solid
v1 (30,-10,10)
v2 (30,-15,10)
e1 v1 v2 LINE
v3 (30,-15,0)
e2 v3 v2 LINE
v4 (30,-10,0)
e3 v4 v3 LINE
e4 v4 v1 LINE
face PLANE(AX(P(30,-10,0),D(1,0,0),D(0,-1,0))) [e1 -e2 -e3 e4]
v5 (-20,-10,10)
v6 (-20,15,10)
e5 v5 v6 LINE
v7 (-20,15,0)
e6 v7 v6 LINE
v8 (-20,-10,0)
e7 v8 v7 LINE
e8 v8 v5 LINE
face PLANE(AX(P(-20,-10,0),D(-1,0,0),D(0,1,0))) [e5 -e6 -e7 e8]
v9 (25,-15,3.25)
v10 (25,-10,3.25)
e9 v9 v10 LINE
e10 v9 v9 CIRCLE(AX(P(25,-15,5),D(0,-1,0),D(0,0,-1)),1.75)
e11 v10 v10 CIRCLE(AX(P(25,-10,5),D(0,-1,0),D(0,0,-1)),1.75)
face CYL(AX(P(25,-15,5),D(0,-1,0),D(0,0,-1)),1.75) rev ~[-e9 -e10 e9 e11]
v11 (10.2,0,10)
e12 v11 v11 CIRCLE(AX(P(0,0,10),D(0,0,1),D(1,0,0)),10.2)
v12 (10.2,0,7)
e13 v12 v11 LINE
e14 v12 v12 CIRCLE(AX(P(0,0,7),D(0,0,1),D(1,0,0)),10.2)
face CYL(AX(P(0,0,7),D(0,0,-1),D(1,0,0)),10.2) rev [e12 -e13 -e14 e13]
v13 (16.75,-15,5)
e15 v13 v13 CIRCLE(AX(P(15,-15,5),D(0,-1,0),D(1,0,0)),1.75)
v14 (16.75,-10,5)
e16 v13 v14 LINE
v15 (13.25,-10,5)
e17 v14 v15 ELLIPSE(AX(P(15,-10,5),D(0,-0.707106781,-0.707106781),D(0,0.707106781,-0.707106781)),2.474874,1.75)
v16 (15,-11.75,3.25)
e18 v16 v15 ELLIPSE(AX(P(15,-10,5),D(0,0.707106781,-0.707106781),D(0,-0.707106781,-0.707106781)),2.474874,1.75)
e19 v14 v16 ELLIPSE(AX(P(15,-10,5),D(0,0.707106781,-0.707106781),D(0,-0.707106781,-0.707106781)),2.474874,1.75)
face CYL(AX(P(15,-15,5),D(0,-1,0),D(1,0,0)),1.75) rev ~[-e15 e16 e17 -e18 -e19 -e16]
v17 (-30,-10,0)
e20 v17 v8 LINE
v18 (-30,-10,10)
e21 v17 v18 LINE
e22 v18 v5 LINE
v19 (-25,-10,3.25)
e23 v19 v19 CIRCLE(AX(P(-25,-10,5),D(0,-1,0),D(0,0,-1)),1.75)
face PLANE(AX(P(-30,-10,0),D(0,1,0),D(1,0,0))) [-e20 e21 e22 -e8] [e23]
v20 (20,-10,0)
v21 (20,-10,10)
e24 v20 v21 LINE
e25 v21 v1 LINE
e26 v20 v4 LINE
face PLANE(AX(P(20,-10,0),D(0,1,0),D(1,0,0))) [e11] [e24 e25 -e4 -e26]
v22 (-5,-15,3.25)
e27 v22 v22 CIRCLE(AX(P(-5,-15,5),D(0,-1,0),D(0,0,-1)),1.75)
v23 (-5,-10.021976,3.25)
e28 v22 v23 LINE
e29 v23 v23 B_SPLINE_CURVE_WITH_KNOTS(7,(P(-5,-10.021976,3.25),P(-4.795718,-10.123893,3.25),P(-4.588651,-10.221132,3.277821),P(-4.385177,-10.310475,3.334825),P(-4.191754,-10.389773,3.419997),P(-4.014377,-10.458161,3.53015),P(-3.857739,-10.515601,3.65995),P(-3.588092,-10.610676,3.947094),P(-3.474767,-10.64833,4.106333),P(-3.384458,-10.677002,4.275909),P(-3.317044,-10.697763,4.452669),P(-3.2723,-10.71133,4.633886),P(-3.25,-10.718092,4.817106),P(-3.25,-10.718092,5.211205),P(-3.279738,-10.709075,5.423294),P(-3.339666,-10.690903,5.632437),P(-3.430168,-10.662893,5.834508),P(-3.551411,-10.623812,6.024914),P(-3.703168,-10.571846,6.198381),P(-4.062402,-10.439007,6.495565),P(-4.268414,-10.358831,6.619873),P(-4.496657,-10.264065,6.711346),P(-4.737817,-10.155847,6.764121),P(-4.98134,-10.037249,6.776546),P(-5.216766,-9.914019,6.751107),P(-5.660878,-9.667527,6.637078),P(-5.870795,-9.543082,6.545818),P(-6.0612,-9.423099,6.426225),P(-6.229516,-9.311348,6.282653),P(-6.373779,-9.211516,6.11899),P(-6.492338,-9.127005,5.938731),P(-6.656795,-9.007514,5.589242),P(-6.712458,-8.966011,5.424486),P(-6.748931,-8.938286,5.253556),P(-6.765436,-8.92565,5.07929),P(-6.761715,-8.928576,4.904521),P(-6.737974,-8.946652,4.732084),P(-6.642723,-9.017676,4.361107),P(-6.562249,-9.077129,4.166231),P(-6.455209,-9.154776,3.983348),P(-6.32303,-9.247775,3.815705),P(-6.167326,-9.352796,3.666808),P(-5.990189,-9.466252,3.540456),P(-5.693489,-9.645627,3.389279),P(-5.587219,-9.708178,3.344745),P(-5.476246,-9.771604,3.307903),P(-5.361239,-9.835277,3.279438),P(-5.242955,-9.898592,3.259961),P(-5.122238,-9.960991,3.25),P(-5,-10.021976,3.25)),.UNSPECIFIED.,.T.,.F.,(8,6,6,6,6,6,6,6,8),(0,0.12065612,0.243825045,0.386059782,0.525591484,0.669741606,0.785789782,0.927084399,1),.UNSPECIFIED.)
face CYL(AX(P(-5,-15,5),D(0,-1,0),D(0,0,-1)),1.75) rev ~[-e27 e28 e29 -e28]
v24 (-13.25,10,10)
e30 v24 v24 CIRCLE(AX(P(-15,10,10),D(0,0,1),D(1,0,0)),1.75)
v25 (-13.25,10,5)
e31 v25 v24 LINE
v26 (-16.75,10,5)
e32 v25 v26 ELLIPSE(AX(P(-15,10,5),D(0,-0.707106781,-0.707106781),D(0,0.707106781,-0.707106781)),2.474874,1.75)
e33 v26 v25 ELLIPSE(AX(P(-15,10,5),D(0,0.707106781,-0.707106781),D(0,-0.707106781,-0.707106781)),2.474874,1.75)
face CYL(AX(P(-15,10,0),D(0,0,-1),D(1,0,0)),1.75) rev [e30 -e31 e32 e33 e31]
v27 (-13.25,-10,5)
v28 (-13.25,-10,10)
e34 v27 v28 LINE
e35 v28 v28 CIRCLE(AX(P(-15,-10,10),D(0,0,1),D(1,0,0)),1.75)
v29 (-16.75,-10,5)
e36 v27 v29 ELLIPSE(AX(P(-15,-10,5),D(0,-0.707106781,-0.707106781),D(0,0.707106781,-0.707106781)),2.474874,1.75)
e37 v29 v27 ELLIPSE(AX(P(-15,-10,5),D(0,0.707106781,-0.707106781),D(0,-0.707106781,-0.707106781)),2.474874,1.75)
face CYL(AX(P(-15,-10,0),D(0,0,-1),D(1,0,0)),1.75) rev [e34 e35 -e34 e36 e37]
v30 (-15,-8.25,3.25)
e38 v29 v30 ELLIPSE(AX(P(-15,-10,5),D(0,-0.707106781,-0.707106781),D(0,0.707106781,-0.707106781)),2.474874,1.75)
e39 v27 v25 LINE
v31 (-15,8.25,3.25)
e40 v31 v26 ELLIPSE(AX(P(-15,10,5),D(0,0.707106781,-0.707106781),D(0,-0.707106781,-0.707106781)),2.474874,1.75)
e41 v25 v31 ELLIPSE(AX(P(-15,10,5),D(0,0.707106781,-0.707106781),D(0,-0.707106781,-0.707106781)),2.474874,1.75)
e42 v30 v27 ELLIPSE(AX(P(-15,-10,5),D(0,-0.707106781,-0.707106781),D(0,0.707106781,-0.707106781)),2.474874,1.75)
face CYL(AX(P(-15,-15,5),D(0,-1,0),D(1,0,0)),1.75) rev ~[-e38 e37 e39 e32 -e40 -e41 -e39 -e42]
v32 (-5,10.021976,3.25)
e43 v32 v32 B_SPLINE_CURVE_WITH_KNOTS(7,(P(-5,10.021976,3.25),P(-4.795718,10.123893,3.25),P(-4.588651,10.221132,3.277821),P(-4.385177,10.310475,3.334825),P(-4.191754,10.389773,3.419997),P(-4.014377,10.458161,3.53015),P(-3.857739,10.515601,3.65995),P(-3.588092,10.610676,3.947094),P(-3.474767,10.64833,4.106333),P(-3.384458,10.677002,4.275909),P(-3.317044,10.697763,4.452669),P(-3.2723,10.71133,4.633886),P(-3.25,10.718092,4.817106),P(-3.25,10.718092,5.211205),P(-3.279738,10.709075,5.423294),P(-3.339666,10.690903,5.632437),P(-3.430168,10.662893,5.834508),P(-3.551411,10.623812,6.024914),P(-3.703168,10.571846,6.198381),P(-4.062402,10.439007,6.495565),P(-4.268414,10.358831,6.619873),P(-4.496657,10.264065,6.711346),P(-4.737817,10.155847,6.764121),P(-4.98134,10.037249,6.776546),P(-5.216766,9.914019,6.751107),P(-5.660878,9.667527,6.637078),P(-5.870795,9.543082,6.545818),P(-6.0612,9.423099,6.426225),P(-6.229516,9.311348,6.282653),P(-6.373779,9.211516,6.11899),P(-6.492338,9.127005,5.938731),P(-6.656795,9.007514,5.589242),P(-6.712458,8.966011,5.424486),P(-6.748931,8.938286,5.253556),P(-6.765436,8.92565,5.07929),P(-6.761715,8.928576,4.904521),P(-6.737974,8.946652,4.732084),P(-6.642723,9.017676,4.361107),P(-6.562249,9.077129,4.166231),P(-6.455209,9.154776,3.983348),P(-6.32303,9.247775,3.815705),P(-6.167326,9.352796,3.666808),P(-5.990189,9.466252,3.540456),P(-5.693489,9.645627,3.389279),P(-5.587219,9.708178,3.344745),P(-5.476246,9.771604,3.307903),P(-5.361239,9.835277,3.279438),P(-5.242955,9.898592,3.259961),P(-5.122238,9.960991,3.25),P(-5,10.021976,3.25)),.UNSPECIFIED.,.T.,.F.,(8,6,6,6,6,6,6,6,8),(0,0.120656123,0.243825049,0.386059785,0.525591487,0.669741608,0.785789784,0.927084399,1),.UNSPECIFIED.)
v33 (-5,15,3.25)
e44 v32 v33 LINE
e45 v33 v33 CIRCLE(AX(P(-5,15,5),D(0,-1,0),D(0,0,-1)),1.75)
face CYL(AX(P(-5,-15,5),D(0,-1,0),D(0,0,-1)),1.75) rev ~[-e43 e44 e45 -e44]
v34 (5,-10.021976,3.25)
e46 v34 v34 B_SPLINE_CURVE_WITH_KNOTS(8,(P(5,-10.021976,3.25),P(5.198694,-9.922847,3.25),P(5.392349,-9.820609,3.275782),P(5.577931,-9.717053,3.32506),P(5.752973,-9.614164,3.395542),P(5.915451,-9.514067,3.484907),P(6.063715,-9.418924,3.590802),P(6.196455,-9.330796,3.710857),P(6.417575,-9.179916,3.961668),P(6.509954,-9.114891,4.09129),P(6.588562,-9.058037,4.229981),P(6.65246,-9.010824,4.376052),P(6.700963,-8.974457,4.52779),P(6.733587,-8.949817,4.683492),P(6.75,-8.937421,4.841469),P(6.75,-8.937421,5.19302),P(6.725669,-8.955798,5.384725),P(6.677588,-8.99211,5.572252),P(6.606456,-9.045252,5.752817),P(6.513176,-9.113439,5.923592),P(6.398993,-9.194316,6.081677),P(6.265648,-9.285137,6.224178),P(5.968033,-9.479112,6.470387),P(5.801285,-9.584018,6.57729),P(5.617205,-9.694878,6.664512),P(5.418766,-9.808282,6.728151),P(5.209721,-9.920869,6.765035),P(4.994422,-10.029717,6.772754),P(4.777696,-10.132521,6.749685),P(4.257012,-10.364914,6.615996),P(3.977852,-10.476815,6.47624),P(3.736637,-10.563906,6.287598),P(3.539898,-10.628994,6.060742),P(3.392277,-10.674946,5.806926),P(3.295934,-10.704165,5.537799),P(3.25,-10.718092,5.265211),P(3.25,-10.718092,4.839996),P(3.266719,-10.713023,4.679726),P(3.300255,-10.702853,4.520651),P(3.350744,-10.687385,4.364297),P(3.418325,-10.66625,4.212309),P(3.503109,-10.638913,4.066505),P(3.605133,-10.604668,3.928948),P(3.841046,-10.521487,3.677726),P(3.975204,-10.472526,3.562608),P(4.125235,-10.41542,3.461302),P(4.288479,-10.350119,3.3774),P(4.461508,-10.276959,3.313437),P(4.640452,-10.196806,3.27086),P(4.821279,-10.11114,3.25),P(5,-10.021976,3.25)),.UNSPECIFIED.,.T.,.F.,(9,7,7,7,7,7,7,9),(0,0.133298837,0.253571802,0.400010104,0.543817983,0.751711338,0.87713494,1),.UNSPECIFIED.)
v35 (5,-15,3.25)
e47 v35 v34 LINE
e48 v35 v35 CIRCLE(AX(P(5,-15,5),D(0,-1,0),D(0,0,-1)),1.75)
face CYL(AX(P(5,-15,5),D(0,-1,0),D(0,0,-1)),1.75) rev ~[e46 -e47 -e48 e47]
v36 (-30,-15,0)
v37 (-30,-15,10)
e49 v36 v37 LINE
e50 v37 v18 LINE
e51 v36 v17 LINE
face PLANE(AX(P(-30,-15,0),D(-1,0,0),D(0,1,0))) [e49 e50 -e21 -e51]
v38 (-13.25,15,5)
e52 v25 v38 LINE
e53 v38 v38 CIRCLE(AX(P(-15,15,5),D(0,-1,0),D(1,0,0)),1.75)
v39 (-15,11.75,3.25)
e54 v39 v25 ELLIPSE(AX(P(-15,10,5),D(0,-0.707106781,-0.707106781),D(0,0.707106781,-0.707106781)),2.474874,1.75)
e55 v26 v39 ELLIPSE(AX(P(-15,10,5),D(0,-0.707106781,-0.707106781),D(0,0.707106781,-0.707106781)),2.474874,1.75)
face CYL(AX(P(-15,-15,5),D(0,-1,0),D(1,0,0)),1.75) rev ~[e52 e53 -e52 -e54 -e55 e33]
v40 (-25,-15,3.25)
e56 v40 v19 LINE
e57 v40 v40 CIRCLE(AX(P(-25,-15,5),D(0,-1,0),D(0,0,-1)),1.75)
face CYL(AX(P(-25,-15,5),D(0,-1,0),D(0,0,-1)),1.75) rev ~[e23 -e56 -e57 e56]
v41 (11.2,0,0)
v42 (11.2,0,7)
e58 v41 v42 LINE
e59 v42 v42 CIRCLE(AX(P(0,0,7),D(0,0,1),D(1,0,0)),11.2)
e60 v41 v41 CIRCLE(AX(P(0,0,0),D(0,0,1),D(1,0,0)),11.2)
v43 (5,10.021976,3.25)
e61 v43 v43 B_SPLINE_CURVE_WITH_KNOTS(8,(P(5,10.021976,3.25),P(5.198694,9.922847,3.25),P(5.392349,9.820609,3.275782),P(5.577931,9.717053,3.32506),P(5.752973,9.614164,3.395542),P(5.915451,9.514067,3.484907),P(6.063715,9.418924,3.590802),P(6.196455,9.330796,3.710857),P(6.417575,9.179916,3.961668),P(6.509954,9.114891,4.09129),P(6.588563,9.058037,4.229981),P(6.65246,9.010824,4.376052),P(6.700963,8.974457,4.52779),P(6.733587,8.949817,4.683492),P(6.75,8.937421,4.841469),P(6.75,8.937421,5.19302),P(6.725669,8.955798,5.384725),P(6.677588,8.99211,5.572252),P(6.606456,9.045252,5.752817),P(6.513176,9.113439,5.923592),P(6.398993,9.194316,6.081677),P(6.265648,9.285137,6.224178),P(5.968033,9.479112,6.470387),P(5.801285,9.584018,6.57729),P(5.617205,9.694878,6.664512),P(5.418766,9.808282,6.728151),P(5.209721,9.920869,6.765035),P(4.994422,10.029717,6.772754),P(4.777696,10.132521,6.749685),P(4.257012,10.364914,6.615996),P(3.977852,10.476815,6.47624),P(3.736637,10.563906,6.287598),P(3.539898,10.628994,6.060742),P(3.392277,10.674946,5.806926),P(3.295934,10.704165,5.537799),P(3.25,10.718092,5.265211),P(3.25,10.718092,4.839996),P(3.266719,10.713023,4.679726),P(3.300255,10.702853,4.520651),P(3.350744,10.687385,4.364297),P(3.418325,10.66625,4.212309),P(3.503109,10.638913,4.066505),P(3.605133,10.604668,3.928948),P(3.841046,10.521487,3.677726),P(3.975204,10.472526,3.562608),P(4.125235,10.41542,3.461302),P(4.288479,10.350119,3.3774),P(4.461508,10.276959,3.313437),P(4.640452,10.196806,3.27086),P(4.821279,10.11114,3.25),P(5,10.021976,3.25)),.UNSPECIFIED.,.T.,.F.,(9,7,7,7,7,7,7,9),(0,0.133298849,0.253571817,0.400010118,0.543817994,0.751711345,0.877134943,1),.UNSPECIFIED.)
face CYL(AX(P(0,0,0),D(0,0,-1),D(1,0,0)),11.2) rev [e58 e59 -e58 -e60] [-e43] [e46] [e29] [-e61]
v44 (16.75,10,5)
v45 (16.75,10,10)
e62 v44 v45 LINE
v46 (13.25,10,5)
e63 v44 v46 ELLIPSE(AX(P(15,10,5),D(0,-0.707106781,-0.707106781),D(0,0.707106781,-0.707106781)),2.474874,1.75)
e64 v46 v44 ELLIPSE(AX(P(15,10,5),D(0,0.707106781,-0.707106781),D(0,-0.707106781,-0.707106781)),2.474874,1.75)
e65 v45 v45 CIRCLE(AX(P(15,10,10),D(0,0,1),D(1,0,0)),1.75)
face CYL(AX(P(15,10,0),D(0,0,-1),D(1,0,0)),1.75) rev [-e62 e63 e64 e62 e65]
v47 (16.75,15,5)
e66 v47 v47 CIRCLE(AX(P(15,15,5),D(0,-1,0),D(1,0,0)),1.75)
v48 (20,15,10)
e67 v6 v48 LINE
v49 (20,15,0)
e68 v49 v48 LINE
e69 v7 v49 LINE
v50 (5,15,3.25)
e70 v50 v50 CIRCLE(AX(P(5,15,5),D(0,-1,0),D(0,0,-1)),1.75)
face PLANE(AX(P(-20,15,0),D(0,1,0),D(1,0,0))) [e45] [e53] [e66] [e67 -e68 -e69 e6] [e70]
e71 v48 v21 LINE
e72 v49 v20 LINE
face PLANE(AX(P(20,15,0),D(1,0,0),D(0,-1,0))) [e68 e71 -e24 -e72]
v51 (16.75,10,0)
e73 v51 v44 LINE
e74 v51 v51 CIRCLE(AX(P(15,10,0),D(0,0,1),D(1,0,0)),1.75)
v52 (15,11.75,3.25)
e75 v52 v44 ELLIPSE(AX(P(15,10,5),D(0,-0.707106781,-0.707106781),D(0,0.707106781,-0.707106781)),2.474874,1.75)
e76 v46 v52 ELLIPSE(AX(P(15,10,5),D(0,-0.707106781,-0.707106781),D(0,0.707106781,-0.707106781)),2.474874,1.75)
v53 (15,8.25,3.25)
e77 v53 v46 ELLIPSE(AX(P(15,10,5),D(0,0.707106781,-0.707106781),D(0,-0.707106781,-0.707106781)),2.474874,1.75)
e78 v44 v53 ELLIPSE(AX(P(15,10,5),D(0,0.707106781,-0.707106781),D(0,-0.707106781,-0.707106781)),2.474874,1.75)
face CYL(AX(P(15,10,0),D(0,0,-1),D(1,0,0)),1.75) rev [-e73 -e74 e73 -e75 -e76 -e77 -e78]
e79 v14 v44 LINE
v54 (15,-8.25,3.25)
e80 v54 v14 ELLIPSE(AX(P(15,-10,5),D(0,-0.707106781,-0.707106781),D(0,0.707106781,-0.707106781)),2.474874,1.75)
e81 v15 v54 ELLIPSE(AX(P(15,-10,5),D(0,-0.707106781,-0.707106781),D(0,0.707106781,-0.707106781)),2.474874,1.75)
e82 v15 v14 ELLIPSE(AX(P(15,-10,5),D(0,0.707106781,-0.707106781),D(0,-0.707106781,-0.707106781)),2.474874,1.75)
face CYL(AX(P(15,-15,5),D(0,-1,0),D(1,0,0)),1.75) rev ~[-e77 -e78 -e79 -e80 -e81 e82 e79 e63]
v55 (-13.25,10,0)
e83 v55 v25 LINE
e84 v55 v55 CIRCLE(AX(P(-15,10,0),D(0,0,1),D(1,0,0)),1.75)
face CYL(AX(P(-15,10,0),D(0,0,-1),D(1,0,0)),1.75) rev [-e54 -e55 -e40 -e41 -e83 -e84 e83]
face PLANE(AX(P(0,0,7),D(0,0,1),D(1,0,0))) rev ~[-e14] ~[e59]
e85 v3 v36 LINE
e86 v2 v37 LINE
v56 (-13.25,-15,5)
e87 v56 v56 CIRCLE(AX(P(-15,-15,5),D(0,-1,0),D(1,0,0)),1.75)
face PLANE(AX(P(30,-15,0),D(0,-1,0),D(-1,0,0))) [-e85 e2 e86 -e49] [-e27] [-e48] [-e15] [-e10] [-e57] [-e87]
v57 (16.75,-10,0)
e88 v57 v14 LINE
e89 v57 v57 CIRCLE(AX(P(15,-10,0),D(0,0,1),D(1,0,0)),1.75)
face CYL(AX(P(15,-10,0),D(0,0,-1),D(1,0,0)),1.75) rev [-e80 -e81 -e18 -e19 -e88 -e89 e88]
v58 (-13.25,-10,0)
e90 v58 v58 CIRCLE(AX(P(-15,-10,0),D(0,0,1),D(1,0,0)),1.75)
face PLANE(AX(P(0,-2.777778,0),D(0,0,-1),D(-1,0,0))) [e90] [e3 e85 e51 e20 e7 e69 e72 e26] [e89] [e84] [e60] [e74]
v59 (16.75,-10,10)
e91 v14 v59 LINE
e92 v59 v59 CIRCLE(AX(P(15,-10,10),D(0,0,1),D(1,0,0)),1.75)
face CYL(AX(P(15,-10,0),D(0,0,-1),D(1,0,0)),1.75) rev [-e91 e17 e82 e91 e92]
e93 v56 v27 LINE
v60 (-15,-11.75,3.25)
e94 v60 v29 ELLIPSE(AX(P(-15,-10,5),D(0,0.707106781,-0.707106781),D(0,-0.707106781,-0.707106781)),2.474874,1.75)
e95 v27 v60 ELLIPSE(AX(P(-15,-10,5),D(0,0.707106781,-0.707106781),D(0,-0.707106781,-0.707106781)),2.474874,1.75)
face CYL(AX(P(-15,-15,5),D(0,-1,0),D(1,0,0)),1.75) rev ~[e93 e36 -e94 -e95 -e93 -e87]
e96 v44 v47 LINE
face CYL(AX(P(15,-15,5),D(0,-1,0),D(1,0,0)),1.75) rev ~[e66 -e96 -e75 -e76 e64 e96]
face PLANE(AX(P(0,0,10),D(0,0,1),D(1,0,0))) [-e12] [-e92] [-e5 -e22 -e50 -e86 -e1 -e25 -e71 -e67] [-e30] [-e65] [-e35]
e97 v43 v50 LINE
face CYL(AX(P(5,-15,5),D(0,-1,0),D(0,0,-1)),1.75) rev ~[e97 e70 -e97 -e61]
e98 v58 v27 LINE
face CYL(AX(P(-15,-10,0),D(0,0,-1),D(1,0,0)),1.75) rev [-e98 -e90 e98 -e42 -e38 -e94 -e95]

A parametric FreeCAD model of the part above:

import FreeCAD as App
import Part
import Sketcher

V = App.Vector
Q = App.Units.Quantity


def add_polygon(sketch, points):
    """Adds a closed chain of lines whose ends are joined by coincident constraints."""
    first, n = sketch.GeometryCount, len(points)
    for a, b in zip(points, points[1:] + points[:1]):
        sketch.addGeometry(Part.LineSegment(App.Vector(*a, 0), App.Vector(*b, 0)), False)
    for i in range(n):
        sketch.addConstraint(Sketcher.Constraint("Coincident", first + i, 2, first + (i + 1) % n, 1))

doc = App.newDocument("Part")
body = doc.addObject("PartDesign::Body", "Body")

sketch1 = body.newObject("Sketcher::SketchObject", "Sketch")
sketch1.AttachmentSupport = (doc.getObject("XY_Plane"), [""])
sketch1.MapMode = "FlatFace"
add_polygon(sketch1, [(-20, 15), (-20, -10), (-30, -10), (-30, -15), (30, -15), (30, -10), (20, -10), (20, 15)])
sketch1.addGeometry(Part.Circle(V(15, -10, 0), V(0, 0, 1), 1.8), False)
sketch1.addGeometry(Part.Circle(V(-15, -10, 0), V(0, 0, 1), 1.8), False)
sketch1.addGeometry(Part.Circle(V(15, 10, 0), V(0, 0, 1), 1.8), False)
sketch1.addGeometry(Part.Circle(V(0, 0, 0), V(0, 0, 1), 11.2), False)
sketch1.addGeometry(Part.Circle(V(-15, 10, 0), V(0, 0, 1), 1.8), False)
sketch1.addConstraint(Sketcher.Constraint("Vertical", 0))
sketch1.addConstraint(Sketcher.Constraint("Horizontal", 1))
sketch1.addConstraint(Sketcher.Constraint("Vertical", 2))
sketch1.addConstraint(Sketcher.Constraint("Horizontal", 3))
sketch1.addConstraint(Sketcher.Constraint("Vertical", 4))
sketch1.addConstraint(Sketcher.Constraint("Horizontal", 5))
sketch1.addConstraint(Sketcher.Constraint("Vertical", 6))
sketch1.addConstraint(Sketcher.Constraint("Horizontal", 7))
sketch1.addConstraint(Sketcher.Constraint("Coincident", 11, 3, -1, 1))
sketch1.addConstraint(Sketcher.Constraint("Equal", 8, 9))
sketch1.addConstraint(Sketcher.Constraint("Equal", 9, 10))
sketch1.addConstraint(Sketcher.Constraint("Equal", 10, 12))
sketch1.addConstraint(Sketcher.Constraint("Symmetric", 9, 3, 10, 3, -1, 1))
sketch1.addConstraint(Sketcher.Constraint("Symmetric", 8, 3, 12, 3, -1, 1))
sketch1.addConstraint(Sketcher.Constraint("Symmetric", 8, 3, 9, 3, -2))
sketch1.addConstraint(Sketcher.Constraint("Symmetric", 1, 2, 4, 2, -2))
sketch1.addConstraint(Sketcher.Constraint("Horizontal", 9, 3, 0, 2))
sketch1.addConstraint(Sketcher.Constraint("Equal", 1, 5))
sketch1.addConstraint(Sketcher.Constraint("Diameter", 8, Q("3.5 mm")))
sketch1.addConstraint(Sketcher.Constraint("Diameter", 11, Q("22.4 mm")))
sketch1.addConstraint(Sketcher.Constraint("DistanceX", 1, 2, 1, 1, Q("10 mm")))
sketch1.addConstraint(Sketcher.Constraint("DistanceX", 3, 1, 3, 2, Q("60 mm")))
sketch1.addConstraint(Sketcher.Constraint("DistanceY", 0, 2, 0, 1, Q("25 mm")))
sketch1.addConstraint(Sketcher.Constraint("DistanceY", 2, 2, 2, 1, Q("5 mm")))
sketch1.addConstraint(Sketcher.Constraint("DistanceX", -1, 1, 8, 3, Q("15 mm")))
sketch1.addConstraint(Sketcher.Constraint("DistanceY", 8, 3, -1, 1, Q("10 mm")))
pad1 = body.newObject("PartDesign::Pad", "Pad")
pad1.Profile = sketch1
pad1.Length = 10

sketch2 = body.newObject("Sketcher::SketchObject", "Sketch001")
sketch2.AttachmentSupport = (doc.getObject("XY_Plane"), [""])
sketch2.MapMode = "FlatFace"
sketch2.AttachmentOffset = App.Placement(V(0, 0, 7), App.Rotation())
sketch2.addGeometry(Part.Circle(V(0, 0, 0), V(0, 0, 1), 11), False)
sketch2.addGeometry(Part.Circle(V(0, 0, 0), V(0, 0, 1), 10), False)
sketch2.addConstraint(Sketcher.Constraint("Coincident", 0, 3, -1, 1))
sketch2.addConstraint(Sketcher.Constraint("Coincident", 1, 3, -1, 1))
sketch2.addConstraint(Sketcher.Constraint("Diameter", 0, Q("22.4 mm")))
sketch2.addConstraint(Sketcher.Constraint("Diameter", 1, Q("20.4 mm")))
pad2 = body.newObject("PartDesign::Pad", "Pad001")
pad2.Profile = sketch2
pad2.Length = 3

sketch3 = body.newObject("Sketcher::SketchObject", "Sketch002")
sketch3.AttachmentSupport = (doc.getObject("XZ_Plane"), [""])
sketch3.MapMode = "FlatFace"
sketch3.AttachmentOffset = App.Placement(V(0, 0, 15), App.Rotation())
sketch3.addGeometry(Part.Circle(V(-25, 5, 0), V(0, 0, 1), 1.8), False)
sketch3.addGeometry(Part.Circle(V(-15, 5, 0), V(0, 0, 1), 1.8), False)
sketch3.addGeometry(Part.Circle(V(-5, 5, 0), V(0, 0, 1), 1.8), False)
sketch3.addGeometry(Part.Circle(V(5, 5, 0), V(0, 0, 1), 1.8), False)
sketch3.addGeometry(Part.Circle(V(15, 5, 0), V(0, 0, 1), 1.8), False)
sketch3.addGeometry(Part.Circle(V(25, 5, 0), V(0, 0, 1), 1.8), False)
sketch3.addConstraint(Sketcher.Constraint("Equal", 0, 1))
sketch3.addConstraint(Sketcher.Constraint("Equal", 1, 2))
sketch3.addConstraint(Sketcher.Constraint("Equal", 2, 3))
sketch3.addConstraint(Sketcher.Constraint("Equal", 3, 4))
sketch3.addConstraint(Sketcher.Constraint("Equal", 4, 5))
sketch3.addConstraint(Sketcher.Constraint("Symmetric", 2, 3, 3, 3, -2))
sketch3.addConstraint(Sketcher.Constraint("Symmetric", 1, 3, 4, 3, -2))
sketch3.addConstraint(Sketcher.Constraint("Symmetric", 0, 3, 5, 3, -2))
sketch3.addConstraint(Sketcher.Constraint("Horizontal", 0, 3, 1, 3))
sketch3.addConstraint(Sketcher.Constraint("Horizontal", 1, 3, 2, 3))
sketch3.addConstraint(Sketcher.Constraint("Diameter", 0, Q("3.5 mm")))
sketch3.addConstraint(Sketcher.Constraint("DistanceX", 0, 3, -1, 1, Q("25 mm")))
sketch3.addConstraint(Sketcher.Constraint("DistanceY", -1, 1, 0, 3, Q("5 mm")))
sketch3.addConstraint(Sketcher.Constraint("DistanceX", 1, 3, -1, 1, Q("15 mm")))
sketch3.addConstraint(Sketcher.Constraint("DistanceX", 2, 3, -1, 1, Q("5 mm")))
pocket1 = body.newObject("PartDesign::Pocket", "Pocket")
pocket1.Profile = sketch3
pocket1.Type = "ThroughAll"

doc.recompute()
